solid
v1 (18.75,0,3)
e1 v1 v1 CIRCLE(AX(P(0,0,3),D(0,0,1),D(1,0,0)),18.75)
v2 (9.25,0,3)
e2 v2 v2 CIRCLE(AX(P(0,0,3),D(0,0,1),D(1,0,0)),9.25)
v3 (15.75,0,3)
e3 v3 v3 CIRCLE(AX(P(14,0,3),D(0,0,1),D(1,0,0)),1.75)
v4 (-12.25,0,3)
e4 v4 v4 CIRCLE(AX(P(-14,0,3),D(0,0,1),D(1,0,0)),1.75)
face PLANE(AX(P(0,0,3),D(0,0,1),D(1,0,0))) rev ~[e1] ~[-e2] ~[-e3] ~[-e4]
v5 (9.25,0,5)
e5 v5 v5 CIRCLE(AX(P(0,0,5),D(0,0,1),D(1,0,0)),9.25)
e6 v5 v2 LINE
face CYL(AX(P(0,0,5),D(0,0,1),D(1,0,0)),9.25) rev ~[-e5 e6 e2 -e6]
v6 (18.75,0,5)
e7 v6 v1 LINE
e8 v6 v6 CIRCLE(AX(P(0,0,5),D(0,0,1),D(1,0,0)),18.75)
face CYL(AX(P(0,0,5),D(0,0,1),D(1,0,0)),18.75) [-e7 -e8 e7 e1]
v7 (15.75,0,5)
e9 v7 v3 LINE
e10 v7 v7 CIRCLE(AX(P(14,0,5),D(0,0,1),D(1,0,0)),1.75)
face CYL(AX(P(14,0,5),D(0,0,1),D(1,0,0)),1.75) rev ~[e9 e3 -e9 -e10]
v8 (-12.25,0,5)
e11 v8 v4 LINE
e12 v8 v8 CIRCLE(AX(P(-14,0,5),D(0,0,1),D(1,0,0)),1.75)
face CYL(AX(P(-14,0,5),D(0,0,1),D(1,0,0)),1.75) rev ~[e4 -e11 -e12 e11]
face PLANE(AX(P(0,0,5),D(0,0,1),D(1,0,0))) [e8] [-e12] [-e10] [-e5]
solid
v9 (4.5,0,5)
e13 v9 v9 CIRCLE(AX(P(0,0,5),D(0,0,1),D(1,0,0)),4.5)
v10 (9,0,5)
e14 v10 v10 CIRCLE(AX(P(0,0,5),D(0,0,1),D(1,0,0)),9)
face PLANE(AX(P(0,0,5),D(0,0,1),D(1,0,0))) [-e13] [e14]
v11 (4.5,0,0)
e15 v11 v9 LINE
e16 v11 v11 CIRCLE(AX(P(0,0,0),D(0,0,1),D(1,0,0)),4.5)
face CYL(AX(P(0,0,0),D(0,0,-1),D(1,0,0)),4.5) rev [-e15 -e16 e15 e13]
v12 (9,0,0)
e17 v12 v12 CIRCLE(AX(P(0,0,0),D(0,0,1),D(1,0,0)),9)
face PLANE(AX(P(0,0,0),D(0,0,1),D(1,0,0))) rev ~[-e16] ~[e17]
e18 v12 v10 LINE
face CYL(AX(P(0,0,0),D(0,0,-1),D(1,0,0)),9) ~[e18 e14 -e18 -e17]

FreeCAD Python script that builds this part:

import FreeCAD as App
import Part
import Sketcher
Q = App.Units.Quantity

doc = App.newDocument("Part")
body = doc.addObject("PartDesign::Body", "Body")

sketch1 = body.newObject("Sketcher::SketchObject", "Sketch")
sketch1.AttachmentSupport = (doc.getObject("XY_Plane"), [""])
sketch1.MapMode = "FlatFace"
sketch1.addGeometry(Part.Circle(App.Vector(0, 0, 0), App.Vector(0, 0, 1), 9), False)
sketch1.addGeometry(Part.Circle(App.Vector(0, 0, 0), App.Vector(0, 0, 1), 4.5), False)
sketch1.addConstraint(Sketcher.Constraint("Coincident", 0, 3, -1, 1))
sketch1.addConstraint(Sketcher.Constraint("Coincident", 1, 3, -1, 1))
sketch1.addConstraint(Sketcher.Constraint("Diameter", 0, Q("18 mm")))
sketch1.addConstraint(Sketcher.Constraint("Diameter", 1, Q("9 mm")))
pad1 = body.newObject("PartDesign::Pad", "Pad")
pad1.Profile = sketch1
pad1.Length = 5
body2 = doc.addObject("PartDesign::Body", "Body001")

sketch2 = body2.newObject("Sketcher::SketchObject", "Sketch001")
sketch2.AttachmentSupport = (doc.getObject("XY_Plane001"), [""])
sketch2.MapMode = "FlatFace"
sketch2.AttachmentOffset = App.Placement(App.Vector(0, 0, 5), App.Rotation())
sketch2.addGeometry(Part.Circle(App.Vector(0, 0, 0), App.Vector(0, 0, 1), 18.8), False)
sketch2.addGeometry(Part.Circle(App.Vector(-14, 0, 0), App.Vector(0, 0, 1), 1.8), False)
sketch2.addGeometry(Part.Circle(App.Vector(0, 0, 0), App.Vector(0, 0, 1), 9.2), False)
sketch2.addGeometry(Part.Circle(App.Vector(14, 0, 0), App.Vector(0, 0, 1), 1.8), False)
sketch2.addConstraint(Sketcher.Constraint("Coincident", 0, 3, -1, 1))
sketch2.addConstraint(Sketcher.Constraint("Coincident", 2, 3, -1, 1))
sketch2.addConstraint(Sketcher.Constraint("Equal", 1, 3))
sketch2.addConstraint(Sketcher.Constraint("Symmetric", 1, 3, 3, 3, -1, 1))
sketch2.addConstraint(Sketcher.Constraint("PointOnObject", 1, 3, -1))
sketch2.addConstraint(Sketcher.Constraint("Diameter", 0, Q("37.5 mm")))
sketch2.addConstraint(Sketcher.Constraint("Diameter", 1, Q("3.5 mm")))
sketch2.addConstraint(Sketcher.Constraint("Diameter", 2, Q("18.5 mm")))
sketch2.addConstraint(Sketcher.Constraint("DistanceX", 1, 3, -1, 1, Q("14 mm")))
pad2 = body2.newObject("PartDesign::Pad", "Pad001")
pad2.Profile = sketch2
pad2.Length = 2
pad2.Reversed = True

doc.recompute()
